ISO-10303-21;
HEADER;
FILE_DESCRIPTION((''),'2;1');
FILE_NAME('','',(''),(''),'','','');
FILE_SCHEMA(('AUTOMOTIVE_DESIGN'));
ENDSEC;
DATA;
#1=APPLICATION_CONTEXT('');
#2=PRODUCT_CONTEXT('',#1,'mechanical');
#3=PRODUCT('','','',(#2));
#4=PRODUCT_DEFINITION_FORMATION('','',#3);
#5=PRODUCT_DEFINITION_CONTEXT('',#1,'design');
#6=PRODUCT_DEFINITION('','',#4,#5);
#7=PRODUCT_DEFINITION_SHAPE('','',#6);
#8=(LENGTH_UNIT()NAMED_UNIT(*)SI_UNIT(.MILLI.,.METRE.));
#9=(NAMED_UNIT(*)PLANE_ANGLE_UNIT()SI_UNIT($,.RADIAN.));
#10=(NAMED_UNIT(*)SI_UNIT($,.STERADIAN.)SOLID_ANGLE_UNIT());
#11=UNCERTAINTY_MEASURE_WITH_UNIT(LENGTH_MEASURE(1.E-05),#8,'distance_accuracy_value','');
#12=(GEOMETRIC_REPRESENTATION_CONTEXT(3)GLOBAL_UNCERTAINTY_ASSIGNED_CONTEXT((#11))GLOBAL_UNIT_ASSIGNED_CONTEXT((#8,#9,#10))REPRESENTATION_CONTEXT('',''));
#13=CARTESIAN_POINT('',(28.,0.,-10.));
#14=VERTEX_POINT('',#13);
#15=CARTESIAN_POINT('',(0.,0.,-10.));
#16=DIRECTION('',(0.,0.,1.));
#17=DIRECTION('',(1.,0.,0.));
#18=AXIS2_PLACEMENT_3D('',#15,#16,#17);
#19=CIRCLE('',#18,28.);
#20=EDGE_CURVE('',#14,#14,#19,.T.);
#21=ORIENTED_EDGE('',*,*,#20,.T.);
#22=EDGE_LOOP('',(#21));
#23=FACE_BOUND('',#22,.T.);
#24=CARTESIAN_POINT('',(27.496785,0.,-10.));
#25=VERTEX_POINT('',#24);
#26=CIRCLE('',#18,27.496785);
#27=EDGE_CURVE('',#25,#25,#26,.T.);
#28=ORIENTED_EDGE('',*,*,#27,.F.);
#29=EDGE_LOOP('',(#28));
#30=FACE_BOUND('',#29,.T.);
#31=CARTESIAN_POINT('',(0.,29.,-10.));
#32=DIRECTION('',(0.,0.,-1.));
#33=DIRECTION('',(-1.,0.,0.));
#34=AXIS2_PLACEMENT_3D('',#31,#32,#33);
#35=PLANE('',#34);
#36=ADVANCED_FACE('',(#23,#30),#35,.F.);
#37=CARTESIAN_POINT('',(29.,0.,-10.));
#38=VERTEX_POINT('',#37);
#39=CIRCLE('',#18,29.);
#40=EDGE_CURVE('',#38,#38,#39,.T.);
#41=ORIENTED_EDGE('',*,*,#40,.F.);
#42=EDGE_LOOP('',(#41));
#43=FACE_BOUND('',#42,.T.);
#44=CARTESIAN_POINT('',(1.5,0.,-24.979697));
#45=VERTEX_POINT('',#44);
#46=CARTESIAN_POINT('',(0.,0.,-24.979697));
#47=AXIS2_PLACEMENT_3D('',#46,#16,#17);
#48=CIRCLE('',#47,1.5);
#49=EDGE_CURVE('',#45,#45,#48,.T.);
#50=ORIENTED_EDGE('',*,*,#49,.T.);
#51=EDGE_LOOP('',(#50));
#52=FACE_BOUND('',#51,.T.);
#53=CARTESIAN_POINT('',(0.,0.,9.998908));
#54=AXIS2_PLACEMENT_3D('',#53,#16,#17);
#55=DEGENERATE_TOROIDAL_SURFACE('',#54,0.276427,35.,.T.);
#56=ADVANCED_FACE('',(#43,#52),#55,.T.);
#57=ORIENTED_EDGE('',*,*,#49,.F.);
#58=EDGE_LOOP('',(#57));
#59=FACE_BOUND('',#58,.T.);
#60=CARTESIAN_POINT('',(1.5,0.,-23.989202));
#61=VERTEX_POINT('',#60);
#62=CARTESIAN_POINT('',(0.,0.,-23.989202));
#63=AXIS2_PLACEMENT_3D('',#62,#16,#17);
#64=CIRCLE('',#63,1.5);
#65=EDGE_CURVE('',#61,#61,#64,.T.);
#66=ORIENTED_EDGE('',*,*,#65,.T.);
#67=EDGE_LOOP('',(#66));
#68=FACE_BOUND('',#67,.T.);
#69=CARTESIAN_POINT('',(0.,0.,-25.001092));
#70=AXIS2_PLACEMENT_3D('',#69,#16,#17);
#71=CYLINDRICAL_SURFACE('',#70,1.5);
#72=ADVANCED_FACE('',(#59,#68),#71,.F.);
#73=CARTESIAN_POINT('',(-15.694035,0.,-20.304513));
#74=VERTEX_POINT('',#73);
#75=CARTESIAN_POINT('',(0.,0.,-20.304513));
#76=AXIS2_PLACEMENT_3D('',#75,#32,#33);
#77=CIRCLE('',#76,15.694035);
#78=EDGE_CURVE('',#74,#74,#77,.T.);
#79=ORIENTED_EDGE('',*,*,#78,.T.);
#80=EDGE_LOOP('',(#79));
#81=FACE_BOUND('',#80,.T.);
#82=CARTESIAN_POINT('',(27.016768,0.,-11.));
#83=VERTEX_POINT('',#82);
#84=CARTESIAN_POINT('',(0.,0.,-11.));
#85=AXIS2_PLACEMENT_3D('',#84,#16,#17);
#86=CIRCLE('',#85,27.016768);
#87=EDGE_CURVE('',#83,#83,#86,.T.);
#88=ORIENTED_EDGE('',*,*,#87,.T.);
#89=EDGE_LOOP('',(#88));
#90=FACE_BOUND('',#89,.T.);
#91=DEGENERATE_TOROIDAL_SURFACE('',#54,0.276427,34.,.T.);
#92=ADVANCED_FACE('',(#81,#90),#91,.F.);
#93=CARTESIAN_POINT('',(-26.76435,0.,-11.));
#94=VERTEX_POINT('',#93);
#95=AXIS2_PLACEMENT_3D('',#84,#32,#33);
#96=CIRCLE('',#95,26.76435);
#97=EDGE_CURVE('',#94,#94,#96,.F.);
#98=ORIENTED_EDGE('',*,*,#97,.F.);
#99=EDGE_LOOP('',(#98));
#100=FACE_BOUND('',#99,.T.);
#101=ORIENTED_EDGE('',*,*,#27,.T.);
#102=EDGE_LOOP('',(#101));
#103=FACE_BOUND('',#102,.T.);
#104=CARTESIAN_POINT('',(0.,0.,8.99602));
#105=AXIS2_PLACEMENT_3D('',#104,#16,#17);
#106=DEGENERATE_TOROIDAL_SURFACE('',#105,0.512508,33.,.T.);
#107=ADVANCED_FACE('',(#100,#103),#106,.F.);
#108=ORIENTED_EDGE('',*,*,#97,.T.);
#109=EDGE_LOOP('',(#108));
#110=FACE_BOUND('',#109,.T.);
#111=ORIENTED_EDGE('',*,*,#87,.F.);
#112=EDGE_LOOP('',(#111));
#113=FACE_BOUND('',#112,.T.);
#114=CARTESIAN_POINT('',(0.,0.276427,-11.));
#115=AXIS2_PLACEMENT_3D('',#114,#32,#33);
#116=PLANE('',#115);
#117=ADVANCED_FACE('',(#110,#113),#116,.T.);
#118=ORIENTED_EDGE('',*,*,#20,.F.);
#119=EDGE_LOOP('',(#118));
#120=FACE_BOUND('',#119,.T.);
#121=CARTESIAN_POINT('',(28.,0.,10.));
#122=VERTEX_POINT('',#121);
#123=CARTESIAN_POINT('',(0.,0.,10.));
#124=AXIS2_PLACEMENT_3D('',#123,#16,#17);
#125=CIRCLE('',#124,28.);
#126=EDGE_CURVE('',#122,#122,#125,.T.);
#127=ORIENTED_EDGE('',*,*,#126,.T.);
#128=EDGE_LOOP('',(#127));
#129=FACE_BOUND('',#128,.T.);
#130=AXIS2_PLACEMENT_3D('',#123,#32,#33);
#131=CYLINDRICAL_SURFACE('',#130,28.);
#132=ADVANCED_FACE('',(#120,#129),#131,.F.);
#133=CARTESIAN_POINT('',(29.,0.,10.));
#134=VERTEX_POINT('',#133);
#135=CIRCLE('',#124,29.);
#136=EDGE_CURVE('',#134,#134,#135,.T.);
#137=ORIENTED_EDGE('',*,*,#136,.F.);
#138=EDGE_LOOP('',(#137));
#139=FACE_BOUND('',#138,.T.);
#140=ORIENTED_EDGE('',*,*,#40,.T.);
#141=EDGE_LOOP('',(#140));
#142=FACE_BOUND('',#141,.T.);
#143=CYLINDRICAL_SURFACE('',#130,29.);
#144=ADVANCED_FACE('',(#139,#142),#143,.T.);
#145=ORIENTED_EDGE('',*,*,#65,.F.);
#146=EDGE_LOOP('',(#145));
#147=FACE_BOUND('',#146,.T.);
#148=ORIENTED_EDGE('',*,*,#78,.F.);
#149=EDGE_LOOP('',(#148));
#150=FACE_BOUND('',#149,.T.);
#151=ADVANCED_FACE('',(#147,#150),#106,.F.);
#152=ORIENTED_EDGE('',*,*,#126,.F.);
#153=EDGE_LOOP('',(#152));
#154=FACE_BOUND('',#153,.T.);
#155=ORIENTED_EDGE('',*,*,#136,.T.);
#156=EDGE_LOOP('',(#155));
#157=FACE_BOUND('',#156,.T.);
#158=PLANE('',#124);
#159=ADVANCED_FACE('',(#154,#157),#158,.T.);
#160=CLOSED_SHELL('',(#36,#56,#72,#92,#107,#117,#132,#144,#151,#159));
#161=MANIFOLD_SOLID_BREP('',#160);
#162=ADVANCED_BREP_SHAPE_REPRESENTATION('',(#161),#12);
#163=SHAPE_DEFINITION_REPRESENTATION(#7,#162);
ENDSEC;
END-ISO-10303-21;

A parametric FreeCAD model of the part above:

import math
import FreeCAD as App
import Part
import Sketcher
Q = App.Units.Quantity

doc = App.newDocument("Part")
body = doc.addObject("PartDesign::Body", "Body")

sketch1 = doc.addObject("Sketcher::SketchObject", "Sketch")
body.addObject(sketch1)
sketch1.AttachmentSupport = (doc.XY_Plane, [""])
sketch1.MapMode = "FlatFace"
sketch1.addGeometry(Part.Circle(App.Vector(0, 0, 0), App.Vector(0, 0, 1), 29), False)
sketch1.addGeometry(Part.Circle(App.Vector(0, 0, 0), App.Vector(0, 0, 1), 28), False)
sketch1.addConstraint(Sketcher.Constraint("Coincident", 0, 3, -1, 1))
sketch1.addConstraint(Sketcher.Constraint("Coincident", 1, 3, -1, 1))
sketch1.addConstraint(Sketcher.Constraint("Diameter", 0, Q("58 mm")))
sketch1.addConstraint(Sketcher.Constraint("Diameter", 1, Q("56 mm")))
pad1 = doc.addObject("PartDesign::Pad", "Pad")
body.addObject(pad1)
pad1.Profile = sketch1
pad1.Length = 20
pad1.Midplane = True

sketch2 = doc.addObject("Sketcher::SketchObject", "Sketch001")
body.addObject(sketch2)
sketch2.AttachmentSupport = (doc.YZ_Plane, [""])
sketch2.MapMode = "FlatFace"
sketch2.addGeometry(Part.LineSegment(App.Vector(29, -10, 0), App.Vector(0, -10, 0)), False)
sketch2.addGeometry(Part.LineSegment(App.Vector(0, -10, 0), App.Vector(0, -25, 0)), False)
sketch2.addGeometry(Part.ArcOfCircle(Part.Circle(App.Vector(0.276427, 9.998908, 0), App.Vector(0, 0, 1), 35), math.radians(-90.452521), math.radians(-34.847727)), False)
sketch2.addGeometry(Part.LineSegment(App.Vector(1, -11, 0), App.Vector(27.016768, -11, 0)), False)
sketch2.addGeometry(Part.ArcOfCircle(Part.Circle(App.Vector(0.276427, 9.998908, 0), App.Vector(0, 0, 1), 34), math.radians(-88.780564), math.radians(-38.142174)), False)
sketch2.addGeometry(Part.LineSegment(App.Vector(1, -23.993391, 0), App.Vector(1, -11, 0)), False)
sketch2.addConstraint(Sketcher.Constraint("Coincident", 0, 2, 1, 1))
sketch2.addConstraint(Sketcher.Constraint("Coincident", 1, 2, 2, 1))
sketch2.addConstraint(Sketcher.Constraint("Coincident", 2, 2, 0, 1))
sketch2.addConstraint(Sketcher.Constraint("Coincident", 3, 2, 4, 2))
sketch2.addConstraint(Sketcher.Constraint("Coincident", 4, 1, 5, 1))
sketch2.addConstraint(Sketcher.Constraint("Coincident", 5, 2, 3, 1))
sketch2.addConstraint(Sketcher.Constraint("Horizontal", 0))
sketch2.addConstraint(Sketcher.Constraint("Vertical", 1))
sketch2.addConstraint(Sketcher.Constraint("Horizontal", 3))
sketch2.addConstraint(Sketcher.Constraint("Vertical", 5))
sketch2.addConstraint(Sketcher.Constraint("Coincident", 4, 3, 2, 3))
sketch2.addConstraint(Sketcher.Constraint("PointOnObject", 0, 2, -2))
sketch2.addConstraint(Sketcher.Constraint("Radius", 2, Q("35 mm")))
sketch2.addConstraint(Sketcher.Constraint("Radius", 4, Q("34 mm")))
sketch2.addConstraint(Sketcher.Constraint("DistanceX", 0, 2, 0, 1, Q("29 mm")))
sketch2.addConstraint(Sketcher.Constraint("DistanceY", 1, 2, 1, 1, Q("15 mm")))
sketch2.addConstraint(Sketcher.Constraint("DistanceY", 0, 2, -1, 1, Q("10 mm")))
sketch2.addConstraint(Sketcher.Constraint("DistanceY", 3, 2, -1, 1, Q("11 mm")))
sketch2.addConstraint(Sketcher.Constraint("DistanceX", -1, 1, 4, 1, Q("1 mm")))
revolution = doc.addObject("PartDesign::Revolution", "Revolution")
body.addObject(revolution)
revolution.Profile = sketch2
revolution.ReferenceAxis = (sketch2, ["V_Axis"])
revolution.Angle = 360

sketch3 = doc.addObject("Sketcher::SketchObject", "Sketch002")
body.addObject(sketch3)
sketch3.AttachmentSupport = (doc.YZ_Plane, [""])
sketch3.MapMode = "FlatFace"
sketch3.addGeometry(Part.LineSegment(App.Vector(0, -10, 0), App.Vector(0, -24, 0)), False)
sketch3.addGeometry(Part.ArcOfCircle(Part.Circle(App.Vector(0.512508, 8.99602, 0), App.Vector(0, 0, 1), 33), math.radians(-90.889871), math.radians(-35.144252)), False)
sketch3.addGeometry(Part.LineSegment(App.Vector(27.496785, -10, 0), App.Vector(0, -10, 0)), False)
sketch3.addConstraint(Sketcher.Constraint("Coincident", 0, 2, 1, 1))
sketch3.addConstraint(Sketcher.Constraint("Coincident", 1, 2, 2, 1))
sketch3.addConstraint(Sketcher.Constraint("Coincident", 2, 2, 0, 1))
sketch3.addConstraint(Sketcher.Constraint("Vertical", 0))
sketch3.addConstraint(Sketcher.Constraint("Horizontal", 2))
sketch3.addConstraint(Sketcher.Constraint("PointOnObject", 0, 2, -2))
sketch3.addConstraint(Sketcher.Constraint("Radius", 1, Q("33 mm")))
sketch3.addConstraint(Sketcher.Constraint("DistanceY", 0, 2, 0, 1, Q("14 mm")))
sketch3.addConstraint(Sketcher.Constraint("DistanceY", 0, 2, -1, 1, Q("24 mm")))
sketch3.addConstraint(Sketcher.Constraint("DistanceX", 2, 2, 2, 1, Q("27.496785 mm")))
groove = doc.addObject("PartDesign::Groove", "Groove")
body.addObject(groove)
groove.Profile = sketch3
groove.ReferenceAxis = (sketch3, ["V_Axis"])
groove.Angle = 360

sketch4 = doc.addObject("Sketcher::SketchObject", "Sketch003")
body.addObject(sketch4)
sketch4.AttachmentSupport = (doc.XY_Plane, [""])
sketch4.MapMode = "FlatFace"
sketch4.addGeometry(Part.Circle(App.Vector(0, 0, 0), App.Vector(0, 0, 1), 1.5), False)
sketch4.addConstraint(Sketcher.Constraint("Coincident", 0, 3, -1, 1))
sketch4.addConstraint(Sketcher.Constraint("Diameter", 0, Q("3 mm")))
pocket1 = doc.addObject("PartDesign::Pocket", "Pocket")
body.addObject(pocket1)
pocket1.Profile = sketch4
pocket1.Type = "ThroughAll"

sketch5 = doc.addObject("Sketcher::SketchObject", "Sketch004")
body.addObject(sketch5)
sketch5.AttachmentSupport = (doc.XY_Plane, [""])
sketch5.MapMode = "FlatFace"
sketch5.AttachmentOffset = App.Placement(App.Vector(0, 0, -10), App.Rotation())
sketch5.addGeometry(Part.Circle(App.Vector(0, 0, 0), App.Vector(0, 0, 1), 1.5), False)
sketch5.addConstraint(Sketcher.Constraint("Coincident", 0, 3, -1, 1))
sketch5.addConstraint(Sketcher.Constraint("Diameter", 0, Q("3 mm")))
pocket2 = doc.addObject("PartDesign::Pocket", "Pocket001")
body.addObject(pocket2)
pocket2.Profile = sketch5
pocket2.Length = 1

doc.recompute()
